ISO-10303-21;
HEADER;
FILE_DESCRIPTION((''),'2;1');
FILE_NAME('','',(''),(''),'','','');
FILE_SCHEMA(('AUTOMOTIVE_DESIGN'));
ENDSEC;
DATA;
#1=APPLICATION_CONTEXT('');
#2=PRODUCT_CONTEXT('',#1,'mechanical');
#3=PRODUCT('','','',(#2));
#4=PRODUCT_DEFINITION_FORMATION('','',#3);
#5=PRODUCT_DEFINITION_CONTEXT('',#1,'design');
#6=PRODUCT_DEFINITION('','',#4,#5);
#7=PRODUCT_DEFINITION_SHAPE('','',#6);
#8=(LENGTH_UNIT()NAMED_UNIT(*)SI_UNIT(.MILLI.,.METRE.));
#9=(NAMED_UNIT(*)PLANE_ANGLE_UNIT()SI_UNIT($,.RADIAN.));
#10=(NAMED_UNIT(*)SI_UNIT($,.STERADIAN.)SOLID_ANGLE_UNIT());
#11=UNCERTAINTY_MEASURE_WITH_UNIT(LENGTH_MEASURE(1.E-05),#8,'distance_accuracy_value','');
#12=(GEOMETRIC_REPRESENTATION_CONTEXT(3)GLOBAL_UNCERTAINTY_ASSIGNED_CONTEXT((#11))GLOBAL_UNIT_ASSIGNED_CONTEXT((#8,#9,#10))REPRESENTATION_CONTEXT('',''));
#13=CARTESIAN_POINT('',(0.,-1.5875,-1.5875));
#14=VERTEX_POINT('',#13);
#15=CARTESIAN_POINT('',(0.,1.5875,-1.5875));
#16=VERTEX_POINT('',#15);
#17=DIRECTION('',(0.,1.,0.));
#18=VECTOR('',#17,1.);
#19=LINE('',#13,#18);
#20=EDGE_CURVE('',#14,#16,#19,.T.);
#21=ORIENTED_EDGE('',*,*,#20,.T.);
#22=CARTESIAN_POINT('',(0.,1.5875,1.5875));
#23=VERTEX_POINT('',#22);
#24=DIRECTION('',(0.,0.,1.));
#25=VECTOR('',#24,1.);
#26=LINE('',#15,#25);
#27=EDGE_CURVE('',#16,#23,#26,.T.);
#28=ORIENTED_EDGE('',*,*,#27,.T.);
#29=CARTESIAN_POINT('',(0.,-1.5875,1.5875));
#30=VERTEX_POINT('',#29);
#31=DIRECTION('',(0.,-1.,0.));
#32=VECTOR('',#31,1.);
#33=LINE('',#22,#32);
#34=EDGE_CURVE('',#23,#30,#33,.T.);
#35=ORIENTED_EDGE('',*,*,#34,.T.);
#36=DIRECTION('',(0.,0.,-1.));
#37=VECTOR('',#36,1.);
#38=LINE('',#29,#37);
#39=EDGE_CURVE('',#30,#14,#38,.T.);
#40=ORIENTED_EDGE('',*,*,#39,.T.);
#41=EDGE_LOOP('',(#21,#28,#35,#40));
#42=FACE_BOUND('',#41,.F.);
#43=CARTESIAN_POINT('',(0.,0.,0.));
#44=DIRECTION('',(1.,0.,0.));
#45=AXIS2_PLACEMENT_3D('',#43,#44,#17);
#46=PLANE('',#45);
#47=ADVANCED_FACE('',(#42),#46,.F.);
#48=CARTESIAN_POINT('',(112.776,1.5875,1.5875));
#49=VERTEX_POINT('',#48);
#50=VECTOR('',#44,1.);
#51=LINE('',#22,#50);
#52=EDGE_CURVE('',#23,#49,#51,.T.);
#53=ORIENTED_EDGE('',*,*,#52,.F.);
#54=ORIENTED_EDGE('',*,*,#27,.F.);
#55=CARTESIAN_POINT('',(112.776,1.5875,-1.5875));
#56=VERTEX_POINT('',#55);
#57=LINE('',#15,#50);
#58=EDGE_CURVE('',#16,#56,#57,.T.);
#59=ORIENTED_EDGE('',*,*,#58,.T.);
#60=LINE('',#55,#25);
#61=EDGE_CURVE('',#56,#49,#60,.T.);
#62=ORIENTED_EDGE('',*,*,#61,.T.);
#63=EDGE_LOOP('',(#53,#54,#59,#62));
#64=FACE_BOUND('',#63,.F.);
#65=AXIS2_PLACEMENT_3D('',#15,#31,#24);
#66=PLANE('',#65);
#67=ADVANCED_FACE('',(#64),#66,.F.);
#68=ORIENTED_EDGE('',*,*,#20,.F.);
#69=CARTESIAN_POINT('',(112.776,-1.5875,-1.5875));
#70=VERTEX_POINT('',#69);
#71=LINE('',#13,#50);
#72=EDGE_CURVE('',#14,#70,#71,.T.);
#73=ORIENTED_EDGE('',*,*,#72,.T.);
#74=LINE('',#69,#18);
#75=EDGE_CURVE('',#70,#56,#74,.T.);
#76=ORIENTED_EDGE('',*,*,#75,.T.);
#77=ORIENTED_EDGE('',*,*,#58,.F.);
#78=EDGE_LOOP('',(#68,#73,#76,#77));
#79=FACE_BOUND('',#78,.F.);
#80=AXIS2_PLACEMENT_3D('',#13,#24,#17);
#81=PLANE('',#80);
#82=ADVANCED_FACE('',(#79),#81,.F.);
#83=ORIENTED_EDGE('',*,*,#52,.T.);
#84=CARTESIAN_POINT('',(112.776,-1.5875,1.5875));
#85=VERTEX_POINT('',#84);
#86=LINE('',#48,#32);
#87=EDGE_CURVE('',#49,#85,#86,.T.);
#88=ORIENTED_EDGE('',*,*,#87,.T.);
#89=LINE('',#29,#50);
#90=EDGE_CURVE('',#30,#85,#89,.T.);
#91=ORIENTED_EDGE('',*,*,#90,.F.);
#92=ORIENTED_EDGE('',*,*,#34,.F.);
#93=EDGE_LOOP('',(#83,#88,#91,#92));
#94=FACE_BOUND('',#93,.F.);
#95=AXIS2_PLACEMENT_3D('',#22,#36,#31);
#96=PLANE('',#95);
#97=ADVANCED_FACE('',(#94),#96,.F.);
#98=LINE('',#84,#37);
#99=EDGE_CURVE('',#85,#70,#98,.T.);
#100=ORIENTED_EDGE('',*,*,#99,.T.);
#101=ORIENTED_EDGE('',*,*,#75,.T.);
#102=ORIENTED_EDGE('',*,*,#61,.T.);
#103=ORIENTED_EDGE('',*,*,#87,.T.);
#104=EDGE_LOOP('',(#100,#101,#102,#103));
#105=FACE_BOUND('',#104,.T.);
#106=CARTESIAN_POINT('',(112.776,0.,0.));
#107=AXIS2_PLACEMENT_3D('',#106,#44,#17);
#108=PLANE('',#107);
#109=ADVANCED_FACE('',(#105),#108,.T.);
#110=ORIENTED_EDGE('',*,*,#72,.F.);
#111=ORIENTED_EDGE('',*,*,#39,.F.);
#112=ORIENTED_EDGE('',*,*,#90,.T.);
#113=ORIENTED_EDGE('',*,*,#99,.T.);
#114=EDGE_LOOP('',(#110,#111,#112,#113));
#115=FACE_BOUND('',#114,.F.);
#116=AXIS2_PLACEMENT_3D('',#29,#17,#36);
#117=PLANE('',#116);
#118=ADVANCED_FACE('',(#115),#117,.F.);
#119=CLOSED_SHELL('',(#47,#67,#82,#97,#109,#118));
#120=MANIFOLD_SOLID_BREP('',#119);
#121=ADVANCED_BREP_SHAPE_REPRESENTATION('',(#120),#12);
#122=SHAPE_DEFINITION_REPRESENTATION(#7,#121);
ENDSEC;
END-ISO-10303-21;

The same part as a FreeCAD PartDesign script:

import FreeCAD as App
import Part
import Sketcher
Q = App.Units.Quantity


def add_polygon(sketch, points):
    """Adds a closed chain of lines whose ends are joined by coincident constraints."""
    first, n = sketch.GeometryCount, len(points)
    for a, b in zip(points, points[1:] + points[:1]):
        sketch.addGeometry(Part.LineSegment(App.Vector(*a, 0), App.Vector(*b, 0)), False)
    for i in range(n):
        sketch.addConstraint(Sketcher.Constraint("Coincident", first + i, 2, first + (i + 1) % n, 1))

doc = App.newDocument("Part")
body = doc.addObject("PartDesign::Body", "Body")

# Sketch on YZ plane
sketch1 = body.newObject("Sketcher::SketchObject", "Sketch")
sketch1.AttachmentSupport = (doc.getObject("YZ_Plane"), [""])
sketch1.MapMode = "FlatFace"
add_polygon(sketch1, [(1.6, -1.6), (1.6, 1.6), (-1.6, 1.6), (-1.6, -1.6)])  # lines 0-3
sketch1.addConstraint([
    Sketcher.Constraint("Vertical", 0),
    Sketcher.Constraint("Horizontal", 1),
    Sketcher.Constraint("Vertical", 2),
    Sketcher.Constraint("Horizontal", 3),
    Sketcher.Constraint("Symmetric", 0, 2, 2, 2, -1, 1),
    Sketcher.Constraint("Equal", 3, 0),
    Sketcher.Constraint("DistanceX", 1, 2, 1, 1, Q("0.125 in")),
])
pad1 = body.newObject("PartDesign::Pad", "Pad")
pad1.Profile = sketch1
pad1.Length = Q("4.44 in")

doc.recompute()
